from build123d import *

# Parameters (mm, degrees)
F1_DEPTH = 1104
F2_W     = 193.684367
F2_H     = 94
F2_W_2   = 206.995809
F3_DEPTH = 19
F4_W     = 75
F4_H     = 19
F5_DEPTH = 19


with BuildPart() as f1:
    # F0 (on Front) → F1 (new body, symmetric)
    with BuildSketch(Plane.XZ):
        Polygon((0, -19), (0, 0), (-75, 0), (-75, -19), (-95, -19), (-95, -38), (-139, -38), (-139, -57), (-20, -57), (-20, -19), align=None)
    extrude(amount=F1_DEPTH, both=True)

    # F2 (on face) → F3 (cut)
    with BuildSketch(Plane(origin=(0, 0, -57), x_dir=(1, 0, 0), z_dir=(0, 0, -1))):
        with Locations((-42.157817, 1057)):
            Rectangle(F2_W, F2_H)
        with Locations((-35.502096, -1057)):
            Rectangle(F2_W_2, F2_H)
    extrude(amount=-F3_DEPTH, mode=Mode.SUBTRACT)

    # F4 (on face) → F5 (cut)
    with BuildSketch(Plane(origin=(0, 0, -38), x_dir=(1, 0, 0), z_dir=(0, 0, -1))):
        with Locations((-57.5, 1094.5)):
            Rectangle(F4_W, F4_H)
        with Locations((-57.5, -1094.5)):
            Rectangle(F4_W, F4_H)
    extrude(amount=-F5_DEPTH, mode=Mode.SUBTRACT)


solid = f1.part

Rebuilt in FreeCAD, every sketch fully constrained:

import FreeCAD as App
import Part
import Sketcher
from FreeCAD import Vector


def add_polygon(sketch, points):
    """Adds a closed chain of lines whose ends are joined by coincident constraints."""
    first, n = sketch.GeometryCount, len(points)
    for a, b in zip(points, points[1:] + points[:1]):
        sketch.addGeometry(Part.LineSegment(App.Vector(*a, 0), App.Vector(*b, 0)), False)
    for i in range(n):
        sketch.addConstraint(Sketcher.Constraint("Coincident", first + i, 2, first + (i + 1) % n, 1))

doc = App.newDocument("Part")
body = doc.addObject("PartDesign::Body", "Body")

sketch1 = body.newObject("Sketcher::SketchObject", "Sketch")
sketch1.AttachmentSupport = (doc.getObject("XZ_Plane"), [""])
sketch1.MapMode = "FlatFace"
add_polygon(sketch1, [(0, -19), (0, 0), (-75, 0), (-75, -19), (-95, -19), (-95, -38), (-139, -38), (-139, -57), (-20, -57), (-20, -19)])
sketch1.addConstraint([
    Sketcher.Constraint("Vertical", 0),
    Sketcher.Constraint("Horizontal", 1),
    Sketcher.Constraint("Vertical", 2),
    Sketcher.Constraint("Horizontal", 3),
    Sketcher.Constraint("Vertical", 4),
    Sketcher.Constraint("Horizontal", 5),
    Sketcher.Constraint("Vertical", 6),
    Sketcher.Constraint("Horizontal", 7),
    Sketcher.Constraint("Vertical", 8),
    Sketcher.Constraint("Horizontal", 9),
    Sketcher.Constraint("Coincident", 0, 2, -1, 1),
    Sketcher.Constraint("Horizontal", 3, 2, 8, 2),
    Sketcher.Constraint("Equal", 3, 9),
    Sketcher.Constraint("Equal", 2, 4),
    Sketcher.Constraint("Equal", 4, 6),
    Sketcher.Constraint("DistanceX", 1, 2, 1, 1, 75.0),
    Sketcher.Constraint("DistanceX", 3, 2, 3, 1, 20.0),
    Sketcher.Constraint("DistanceX", 5, 2, 5, 1, 44.0),
    Sketcher.Constraint("DistanceY", 0, 1, 0, 2, 19.0),
])
pad1 = body.newObject("PartDesign::Pad", "Pad")
pad1.Profile = sketch1
pad1.Length = 2208
pad1.Midplane = True

sketch2 = body.newObject("Sketcher::SketchObject", "Sketch001")
sketch2.AttachmentSupport = (doc.getObject("XY_Plane"), [""])
sketch2.MapMode = "FlatFace"
sketch2.AttachmentOffset = App.Placement(Vector(0, 0, -57), App.Rotation())
add_polygon(sketch2, [(-139, -1104), (-139, -1010), (55, -1010), (55, -1104)])
add_polygon(sketch2, [(-139, 1010), (-139, 1104), (68, 1104), (68, 1010)])
sketch2.addConstraint([
    Sketcher.Constraint("Vertical", 0),
    Sketcher.Constraint("Horizontal", 1),
    Sketcher.Constraint("Vertical", 2),
    Sketcher.Constraint("Horizontal", 3),
    Sketcher.Constraint("Vertical", 4),
    Sketcher.Constraint("Horizontal", 5),
    Sketcher.Constraint("Vertical", 6),
    Sketcher.Constraint("Horizontal", 7),
    Sketcher.Constraint("Symmetric", 3, 2, 4, 2, -1),
    Sketcher.Constraint("Equal", 2, 4),
    Sketcher.Constraint("DistanceY", 0, 1, 0, 2, 94.0),
    Sketcher.Constraint("DistanceX", 0, 2, -1, 1, 139.0),
    Sketcher.Constraint("DistanceY", 0, 2, -1, 1, 1010.0),
    Sketcher.Constraint("DistanceX", 5, 1, 5, 2, 206.995809),
    Sketcher.Constraint("DistanceX", 1, 1, 1, 2, 193.684367),
])
pocket1 = body.newObject("PartDesign::Pocket", "Pocket")
pocket1.Profile = sketch2
pocket1.Length = 19
pocket1.Reversed = True

sketch3 = body.newObject("Sketcher::SketchObject", "Sketch002")
sketch3.AttachmentSupport = (doc.getObject("XY_Plane"), [""])
sketch3.MapMode = "FlatFace"
sketch3.AttachmentOffset = App.Placement(Vector(0, 0, -38), App.Rotation())
add_polygon(sketch3, [(-95, -1104), (-95, -1085), (-20, -1085), (-20, -1104)])
add_polygon(sketch3, [(-95, 1085), (-95, 1104), (-20, 1104), (-20, 1085)])
sketch3.addConstraint([
    Sketcher.Constraint("Vertical", 0),
    Sketcher.Constraint("Horizontal", 1),
    Sketcher.Constraint("Vertical", 2),
    Sketcher.Constraint("Horizontal", 3),
    Sketcher.Constraint("Vertical", 4),
    Sketcher.Constraint("Horizontal", 5),
    Sketcher.Constraint("Vertical", 6),
    Sketcher.Constraint("Horizontal", 7),
    Sketcher.Constraint("Symmetric", 3, 2, 4, 2, -1),
    Sketcher.Constraint("Symmetric", 1, 2, 6, 2, -1),
    Sketcher.Constraint("DistanceX", 1, 1, 1, 2, 75.0),
    Sketcher.Constraint("DistanceY", 0, 1, 0, 2, 19.0),
    Sketcher.Constraint("DistanceX", 0, 2, -1, 1, 95.0),
    Sketcher.Constraint("DistanceY", 0, 2, -1, 1, 1085.0),
])
pocket2 = body.newObject("PartDesign::Pocket", "Pocket001")
pocket2.Profile = sketch3
pocket2.Length = 19
pocket2.Reversed = True

doc.recompute()
